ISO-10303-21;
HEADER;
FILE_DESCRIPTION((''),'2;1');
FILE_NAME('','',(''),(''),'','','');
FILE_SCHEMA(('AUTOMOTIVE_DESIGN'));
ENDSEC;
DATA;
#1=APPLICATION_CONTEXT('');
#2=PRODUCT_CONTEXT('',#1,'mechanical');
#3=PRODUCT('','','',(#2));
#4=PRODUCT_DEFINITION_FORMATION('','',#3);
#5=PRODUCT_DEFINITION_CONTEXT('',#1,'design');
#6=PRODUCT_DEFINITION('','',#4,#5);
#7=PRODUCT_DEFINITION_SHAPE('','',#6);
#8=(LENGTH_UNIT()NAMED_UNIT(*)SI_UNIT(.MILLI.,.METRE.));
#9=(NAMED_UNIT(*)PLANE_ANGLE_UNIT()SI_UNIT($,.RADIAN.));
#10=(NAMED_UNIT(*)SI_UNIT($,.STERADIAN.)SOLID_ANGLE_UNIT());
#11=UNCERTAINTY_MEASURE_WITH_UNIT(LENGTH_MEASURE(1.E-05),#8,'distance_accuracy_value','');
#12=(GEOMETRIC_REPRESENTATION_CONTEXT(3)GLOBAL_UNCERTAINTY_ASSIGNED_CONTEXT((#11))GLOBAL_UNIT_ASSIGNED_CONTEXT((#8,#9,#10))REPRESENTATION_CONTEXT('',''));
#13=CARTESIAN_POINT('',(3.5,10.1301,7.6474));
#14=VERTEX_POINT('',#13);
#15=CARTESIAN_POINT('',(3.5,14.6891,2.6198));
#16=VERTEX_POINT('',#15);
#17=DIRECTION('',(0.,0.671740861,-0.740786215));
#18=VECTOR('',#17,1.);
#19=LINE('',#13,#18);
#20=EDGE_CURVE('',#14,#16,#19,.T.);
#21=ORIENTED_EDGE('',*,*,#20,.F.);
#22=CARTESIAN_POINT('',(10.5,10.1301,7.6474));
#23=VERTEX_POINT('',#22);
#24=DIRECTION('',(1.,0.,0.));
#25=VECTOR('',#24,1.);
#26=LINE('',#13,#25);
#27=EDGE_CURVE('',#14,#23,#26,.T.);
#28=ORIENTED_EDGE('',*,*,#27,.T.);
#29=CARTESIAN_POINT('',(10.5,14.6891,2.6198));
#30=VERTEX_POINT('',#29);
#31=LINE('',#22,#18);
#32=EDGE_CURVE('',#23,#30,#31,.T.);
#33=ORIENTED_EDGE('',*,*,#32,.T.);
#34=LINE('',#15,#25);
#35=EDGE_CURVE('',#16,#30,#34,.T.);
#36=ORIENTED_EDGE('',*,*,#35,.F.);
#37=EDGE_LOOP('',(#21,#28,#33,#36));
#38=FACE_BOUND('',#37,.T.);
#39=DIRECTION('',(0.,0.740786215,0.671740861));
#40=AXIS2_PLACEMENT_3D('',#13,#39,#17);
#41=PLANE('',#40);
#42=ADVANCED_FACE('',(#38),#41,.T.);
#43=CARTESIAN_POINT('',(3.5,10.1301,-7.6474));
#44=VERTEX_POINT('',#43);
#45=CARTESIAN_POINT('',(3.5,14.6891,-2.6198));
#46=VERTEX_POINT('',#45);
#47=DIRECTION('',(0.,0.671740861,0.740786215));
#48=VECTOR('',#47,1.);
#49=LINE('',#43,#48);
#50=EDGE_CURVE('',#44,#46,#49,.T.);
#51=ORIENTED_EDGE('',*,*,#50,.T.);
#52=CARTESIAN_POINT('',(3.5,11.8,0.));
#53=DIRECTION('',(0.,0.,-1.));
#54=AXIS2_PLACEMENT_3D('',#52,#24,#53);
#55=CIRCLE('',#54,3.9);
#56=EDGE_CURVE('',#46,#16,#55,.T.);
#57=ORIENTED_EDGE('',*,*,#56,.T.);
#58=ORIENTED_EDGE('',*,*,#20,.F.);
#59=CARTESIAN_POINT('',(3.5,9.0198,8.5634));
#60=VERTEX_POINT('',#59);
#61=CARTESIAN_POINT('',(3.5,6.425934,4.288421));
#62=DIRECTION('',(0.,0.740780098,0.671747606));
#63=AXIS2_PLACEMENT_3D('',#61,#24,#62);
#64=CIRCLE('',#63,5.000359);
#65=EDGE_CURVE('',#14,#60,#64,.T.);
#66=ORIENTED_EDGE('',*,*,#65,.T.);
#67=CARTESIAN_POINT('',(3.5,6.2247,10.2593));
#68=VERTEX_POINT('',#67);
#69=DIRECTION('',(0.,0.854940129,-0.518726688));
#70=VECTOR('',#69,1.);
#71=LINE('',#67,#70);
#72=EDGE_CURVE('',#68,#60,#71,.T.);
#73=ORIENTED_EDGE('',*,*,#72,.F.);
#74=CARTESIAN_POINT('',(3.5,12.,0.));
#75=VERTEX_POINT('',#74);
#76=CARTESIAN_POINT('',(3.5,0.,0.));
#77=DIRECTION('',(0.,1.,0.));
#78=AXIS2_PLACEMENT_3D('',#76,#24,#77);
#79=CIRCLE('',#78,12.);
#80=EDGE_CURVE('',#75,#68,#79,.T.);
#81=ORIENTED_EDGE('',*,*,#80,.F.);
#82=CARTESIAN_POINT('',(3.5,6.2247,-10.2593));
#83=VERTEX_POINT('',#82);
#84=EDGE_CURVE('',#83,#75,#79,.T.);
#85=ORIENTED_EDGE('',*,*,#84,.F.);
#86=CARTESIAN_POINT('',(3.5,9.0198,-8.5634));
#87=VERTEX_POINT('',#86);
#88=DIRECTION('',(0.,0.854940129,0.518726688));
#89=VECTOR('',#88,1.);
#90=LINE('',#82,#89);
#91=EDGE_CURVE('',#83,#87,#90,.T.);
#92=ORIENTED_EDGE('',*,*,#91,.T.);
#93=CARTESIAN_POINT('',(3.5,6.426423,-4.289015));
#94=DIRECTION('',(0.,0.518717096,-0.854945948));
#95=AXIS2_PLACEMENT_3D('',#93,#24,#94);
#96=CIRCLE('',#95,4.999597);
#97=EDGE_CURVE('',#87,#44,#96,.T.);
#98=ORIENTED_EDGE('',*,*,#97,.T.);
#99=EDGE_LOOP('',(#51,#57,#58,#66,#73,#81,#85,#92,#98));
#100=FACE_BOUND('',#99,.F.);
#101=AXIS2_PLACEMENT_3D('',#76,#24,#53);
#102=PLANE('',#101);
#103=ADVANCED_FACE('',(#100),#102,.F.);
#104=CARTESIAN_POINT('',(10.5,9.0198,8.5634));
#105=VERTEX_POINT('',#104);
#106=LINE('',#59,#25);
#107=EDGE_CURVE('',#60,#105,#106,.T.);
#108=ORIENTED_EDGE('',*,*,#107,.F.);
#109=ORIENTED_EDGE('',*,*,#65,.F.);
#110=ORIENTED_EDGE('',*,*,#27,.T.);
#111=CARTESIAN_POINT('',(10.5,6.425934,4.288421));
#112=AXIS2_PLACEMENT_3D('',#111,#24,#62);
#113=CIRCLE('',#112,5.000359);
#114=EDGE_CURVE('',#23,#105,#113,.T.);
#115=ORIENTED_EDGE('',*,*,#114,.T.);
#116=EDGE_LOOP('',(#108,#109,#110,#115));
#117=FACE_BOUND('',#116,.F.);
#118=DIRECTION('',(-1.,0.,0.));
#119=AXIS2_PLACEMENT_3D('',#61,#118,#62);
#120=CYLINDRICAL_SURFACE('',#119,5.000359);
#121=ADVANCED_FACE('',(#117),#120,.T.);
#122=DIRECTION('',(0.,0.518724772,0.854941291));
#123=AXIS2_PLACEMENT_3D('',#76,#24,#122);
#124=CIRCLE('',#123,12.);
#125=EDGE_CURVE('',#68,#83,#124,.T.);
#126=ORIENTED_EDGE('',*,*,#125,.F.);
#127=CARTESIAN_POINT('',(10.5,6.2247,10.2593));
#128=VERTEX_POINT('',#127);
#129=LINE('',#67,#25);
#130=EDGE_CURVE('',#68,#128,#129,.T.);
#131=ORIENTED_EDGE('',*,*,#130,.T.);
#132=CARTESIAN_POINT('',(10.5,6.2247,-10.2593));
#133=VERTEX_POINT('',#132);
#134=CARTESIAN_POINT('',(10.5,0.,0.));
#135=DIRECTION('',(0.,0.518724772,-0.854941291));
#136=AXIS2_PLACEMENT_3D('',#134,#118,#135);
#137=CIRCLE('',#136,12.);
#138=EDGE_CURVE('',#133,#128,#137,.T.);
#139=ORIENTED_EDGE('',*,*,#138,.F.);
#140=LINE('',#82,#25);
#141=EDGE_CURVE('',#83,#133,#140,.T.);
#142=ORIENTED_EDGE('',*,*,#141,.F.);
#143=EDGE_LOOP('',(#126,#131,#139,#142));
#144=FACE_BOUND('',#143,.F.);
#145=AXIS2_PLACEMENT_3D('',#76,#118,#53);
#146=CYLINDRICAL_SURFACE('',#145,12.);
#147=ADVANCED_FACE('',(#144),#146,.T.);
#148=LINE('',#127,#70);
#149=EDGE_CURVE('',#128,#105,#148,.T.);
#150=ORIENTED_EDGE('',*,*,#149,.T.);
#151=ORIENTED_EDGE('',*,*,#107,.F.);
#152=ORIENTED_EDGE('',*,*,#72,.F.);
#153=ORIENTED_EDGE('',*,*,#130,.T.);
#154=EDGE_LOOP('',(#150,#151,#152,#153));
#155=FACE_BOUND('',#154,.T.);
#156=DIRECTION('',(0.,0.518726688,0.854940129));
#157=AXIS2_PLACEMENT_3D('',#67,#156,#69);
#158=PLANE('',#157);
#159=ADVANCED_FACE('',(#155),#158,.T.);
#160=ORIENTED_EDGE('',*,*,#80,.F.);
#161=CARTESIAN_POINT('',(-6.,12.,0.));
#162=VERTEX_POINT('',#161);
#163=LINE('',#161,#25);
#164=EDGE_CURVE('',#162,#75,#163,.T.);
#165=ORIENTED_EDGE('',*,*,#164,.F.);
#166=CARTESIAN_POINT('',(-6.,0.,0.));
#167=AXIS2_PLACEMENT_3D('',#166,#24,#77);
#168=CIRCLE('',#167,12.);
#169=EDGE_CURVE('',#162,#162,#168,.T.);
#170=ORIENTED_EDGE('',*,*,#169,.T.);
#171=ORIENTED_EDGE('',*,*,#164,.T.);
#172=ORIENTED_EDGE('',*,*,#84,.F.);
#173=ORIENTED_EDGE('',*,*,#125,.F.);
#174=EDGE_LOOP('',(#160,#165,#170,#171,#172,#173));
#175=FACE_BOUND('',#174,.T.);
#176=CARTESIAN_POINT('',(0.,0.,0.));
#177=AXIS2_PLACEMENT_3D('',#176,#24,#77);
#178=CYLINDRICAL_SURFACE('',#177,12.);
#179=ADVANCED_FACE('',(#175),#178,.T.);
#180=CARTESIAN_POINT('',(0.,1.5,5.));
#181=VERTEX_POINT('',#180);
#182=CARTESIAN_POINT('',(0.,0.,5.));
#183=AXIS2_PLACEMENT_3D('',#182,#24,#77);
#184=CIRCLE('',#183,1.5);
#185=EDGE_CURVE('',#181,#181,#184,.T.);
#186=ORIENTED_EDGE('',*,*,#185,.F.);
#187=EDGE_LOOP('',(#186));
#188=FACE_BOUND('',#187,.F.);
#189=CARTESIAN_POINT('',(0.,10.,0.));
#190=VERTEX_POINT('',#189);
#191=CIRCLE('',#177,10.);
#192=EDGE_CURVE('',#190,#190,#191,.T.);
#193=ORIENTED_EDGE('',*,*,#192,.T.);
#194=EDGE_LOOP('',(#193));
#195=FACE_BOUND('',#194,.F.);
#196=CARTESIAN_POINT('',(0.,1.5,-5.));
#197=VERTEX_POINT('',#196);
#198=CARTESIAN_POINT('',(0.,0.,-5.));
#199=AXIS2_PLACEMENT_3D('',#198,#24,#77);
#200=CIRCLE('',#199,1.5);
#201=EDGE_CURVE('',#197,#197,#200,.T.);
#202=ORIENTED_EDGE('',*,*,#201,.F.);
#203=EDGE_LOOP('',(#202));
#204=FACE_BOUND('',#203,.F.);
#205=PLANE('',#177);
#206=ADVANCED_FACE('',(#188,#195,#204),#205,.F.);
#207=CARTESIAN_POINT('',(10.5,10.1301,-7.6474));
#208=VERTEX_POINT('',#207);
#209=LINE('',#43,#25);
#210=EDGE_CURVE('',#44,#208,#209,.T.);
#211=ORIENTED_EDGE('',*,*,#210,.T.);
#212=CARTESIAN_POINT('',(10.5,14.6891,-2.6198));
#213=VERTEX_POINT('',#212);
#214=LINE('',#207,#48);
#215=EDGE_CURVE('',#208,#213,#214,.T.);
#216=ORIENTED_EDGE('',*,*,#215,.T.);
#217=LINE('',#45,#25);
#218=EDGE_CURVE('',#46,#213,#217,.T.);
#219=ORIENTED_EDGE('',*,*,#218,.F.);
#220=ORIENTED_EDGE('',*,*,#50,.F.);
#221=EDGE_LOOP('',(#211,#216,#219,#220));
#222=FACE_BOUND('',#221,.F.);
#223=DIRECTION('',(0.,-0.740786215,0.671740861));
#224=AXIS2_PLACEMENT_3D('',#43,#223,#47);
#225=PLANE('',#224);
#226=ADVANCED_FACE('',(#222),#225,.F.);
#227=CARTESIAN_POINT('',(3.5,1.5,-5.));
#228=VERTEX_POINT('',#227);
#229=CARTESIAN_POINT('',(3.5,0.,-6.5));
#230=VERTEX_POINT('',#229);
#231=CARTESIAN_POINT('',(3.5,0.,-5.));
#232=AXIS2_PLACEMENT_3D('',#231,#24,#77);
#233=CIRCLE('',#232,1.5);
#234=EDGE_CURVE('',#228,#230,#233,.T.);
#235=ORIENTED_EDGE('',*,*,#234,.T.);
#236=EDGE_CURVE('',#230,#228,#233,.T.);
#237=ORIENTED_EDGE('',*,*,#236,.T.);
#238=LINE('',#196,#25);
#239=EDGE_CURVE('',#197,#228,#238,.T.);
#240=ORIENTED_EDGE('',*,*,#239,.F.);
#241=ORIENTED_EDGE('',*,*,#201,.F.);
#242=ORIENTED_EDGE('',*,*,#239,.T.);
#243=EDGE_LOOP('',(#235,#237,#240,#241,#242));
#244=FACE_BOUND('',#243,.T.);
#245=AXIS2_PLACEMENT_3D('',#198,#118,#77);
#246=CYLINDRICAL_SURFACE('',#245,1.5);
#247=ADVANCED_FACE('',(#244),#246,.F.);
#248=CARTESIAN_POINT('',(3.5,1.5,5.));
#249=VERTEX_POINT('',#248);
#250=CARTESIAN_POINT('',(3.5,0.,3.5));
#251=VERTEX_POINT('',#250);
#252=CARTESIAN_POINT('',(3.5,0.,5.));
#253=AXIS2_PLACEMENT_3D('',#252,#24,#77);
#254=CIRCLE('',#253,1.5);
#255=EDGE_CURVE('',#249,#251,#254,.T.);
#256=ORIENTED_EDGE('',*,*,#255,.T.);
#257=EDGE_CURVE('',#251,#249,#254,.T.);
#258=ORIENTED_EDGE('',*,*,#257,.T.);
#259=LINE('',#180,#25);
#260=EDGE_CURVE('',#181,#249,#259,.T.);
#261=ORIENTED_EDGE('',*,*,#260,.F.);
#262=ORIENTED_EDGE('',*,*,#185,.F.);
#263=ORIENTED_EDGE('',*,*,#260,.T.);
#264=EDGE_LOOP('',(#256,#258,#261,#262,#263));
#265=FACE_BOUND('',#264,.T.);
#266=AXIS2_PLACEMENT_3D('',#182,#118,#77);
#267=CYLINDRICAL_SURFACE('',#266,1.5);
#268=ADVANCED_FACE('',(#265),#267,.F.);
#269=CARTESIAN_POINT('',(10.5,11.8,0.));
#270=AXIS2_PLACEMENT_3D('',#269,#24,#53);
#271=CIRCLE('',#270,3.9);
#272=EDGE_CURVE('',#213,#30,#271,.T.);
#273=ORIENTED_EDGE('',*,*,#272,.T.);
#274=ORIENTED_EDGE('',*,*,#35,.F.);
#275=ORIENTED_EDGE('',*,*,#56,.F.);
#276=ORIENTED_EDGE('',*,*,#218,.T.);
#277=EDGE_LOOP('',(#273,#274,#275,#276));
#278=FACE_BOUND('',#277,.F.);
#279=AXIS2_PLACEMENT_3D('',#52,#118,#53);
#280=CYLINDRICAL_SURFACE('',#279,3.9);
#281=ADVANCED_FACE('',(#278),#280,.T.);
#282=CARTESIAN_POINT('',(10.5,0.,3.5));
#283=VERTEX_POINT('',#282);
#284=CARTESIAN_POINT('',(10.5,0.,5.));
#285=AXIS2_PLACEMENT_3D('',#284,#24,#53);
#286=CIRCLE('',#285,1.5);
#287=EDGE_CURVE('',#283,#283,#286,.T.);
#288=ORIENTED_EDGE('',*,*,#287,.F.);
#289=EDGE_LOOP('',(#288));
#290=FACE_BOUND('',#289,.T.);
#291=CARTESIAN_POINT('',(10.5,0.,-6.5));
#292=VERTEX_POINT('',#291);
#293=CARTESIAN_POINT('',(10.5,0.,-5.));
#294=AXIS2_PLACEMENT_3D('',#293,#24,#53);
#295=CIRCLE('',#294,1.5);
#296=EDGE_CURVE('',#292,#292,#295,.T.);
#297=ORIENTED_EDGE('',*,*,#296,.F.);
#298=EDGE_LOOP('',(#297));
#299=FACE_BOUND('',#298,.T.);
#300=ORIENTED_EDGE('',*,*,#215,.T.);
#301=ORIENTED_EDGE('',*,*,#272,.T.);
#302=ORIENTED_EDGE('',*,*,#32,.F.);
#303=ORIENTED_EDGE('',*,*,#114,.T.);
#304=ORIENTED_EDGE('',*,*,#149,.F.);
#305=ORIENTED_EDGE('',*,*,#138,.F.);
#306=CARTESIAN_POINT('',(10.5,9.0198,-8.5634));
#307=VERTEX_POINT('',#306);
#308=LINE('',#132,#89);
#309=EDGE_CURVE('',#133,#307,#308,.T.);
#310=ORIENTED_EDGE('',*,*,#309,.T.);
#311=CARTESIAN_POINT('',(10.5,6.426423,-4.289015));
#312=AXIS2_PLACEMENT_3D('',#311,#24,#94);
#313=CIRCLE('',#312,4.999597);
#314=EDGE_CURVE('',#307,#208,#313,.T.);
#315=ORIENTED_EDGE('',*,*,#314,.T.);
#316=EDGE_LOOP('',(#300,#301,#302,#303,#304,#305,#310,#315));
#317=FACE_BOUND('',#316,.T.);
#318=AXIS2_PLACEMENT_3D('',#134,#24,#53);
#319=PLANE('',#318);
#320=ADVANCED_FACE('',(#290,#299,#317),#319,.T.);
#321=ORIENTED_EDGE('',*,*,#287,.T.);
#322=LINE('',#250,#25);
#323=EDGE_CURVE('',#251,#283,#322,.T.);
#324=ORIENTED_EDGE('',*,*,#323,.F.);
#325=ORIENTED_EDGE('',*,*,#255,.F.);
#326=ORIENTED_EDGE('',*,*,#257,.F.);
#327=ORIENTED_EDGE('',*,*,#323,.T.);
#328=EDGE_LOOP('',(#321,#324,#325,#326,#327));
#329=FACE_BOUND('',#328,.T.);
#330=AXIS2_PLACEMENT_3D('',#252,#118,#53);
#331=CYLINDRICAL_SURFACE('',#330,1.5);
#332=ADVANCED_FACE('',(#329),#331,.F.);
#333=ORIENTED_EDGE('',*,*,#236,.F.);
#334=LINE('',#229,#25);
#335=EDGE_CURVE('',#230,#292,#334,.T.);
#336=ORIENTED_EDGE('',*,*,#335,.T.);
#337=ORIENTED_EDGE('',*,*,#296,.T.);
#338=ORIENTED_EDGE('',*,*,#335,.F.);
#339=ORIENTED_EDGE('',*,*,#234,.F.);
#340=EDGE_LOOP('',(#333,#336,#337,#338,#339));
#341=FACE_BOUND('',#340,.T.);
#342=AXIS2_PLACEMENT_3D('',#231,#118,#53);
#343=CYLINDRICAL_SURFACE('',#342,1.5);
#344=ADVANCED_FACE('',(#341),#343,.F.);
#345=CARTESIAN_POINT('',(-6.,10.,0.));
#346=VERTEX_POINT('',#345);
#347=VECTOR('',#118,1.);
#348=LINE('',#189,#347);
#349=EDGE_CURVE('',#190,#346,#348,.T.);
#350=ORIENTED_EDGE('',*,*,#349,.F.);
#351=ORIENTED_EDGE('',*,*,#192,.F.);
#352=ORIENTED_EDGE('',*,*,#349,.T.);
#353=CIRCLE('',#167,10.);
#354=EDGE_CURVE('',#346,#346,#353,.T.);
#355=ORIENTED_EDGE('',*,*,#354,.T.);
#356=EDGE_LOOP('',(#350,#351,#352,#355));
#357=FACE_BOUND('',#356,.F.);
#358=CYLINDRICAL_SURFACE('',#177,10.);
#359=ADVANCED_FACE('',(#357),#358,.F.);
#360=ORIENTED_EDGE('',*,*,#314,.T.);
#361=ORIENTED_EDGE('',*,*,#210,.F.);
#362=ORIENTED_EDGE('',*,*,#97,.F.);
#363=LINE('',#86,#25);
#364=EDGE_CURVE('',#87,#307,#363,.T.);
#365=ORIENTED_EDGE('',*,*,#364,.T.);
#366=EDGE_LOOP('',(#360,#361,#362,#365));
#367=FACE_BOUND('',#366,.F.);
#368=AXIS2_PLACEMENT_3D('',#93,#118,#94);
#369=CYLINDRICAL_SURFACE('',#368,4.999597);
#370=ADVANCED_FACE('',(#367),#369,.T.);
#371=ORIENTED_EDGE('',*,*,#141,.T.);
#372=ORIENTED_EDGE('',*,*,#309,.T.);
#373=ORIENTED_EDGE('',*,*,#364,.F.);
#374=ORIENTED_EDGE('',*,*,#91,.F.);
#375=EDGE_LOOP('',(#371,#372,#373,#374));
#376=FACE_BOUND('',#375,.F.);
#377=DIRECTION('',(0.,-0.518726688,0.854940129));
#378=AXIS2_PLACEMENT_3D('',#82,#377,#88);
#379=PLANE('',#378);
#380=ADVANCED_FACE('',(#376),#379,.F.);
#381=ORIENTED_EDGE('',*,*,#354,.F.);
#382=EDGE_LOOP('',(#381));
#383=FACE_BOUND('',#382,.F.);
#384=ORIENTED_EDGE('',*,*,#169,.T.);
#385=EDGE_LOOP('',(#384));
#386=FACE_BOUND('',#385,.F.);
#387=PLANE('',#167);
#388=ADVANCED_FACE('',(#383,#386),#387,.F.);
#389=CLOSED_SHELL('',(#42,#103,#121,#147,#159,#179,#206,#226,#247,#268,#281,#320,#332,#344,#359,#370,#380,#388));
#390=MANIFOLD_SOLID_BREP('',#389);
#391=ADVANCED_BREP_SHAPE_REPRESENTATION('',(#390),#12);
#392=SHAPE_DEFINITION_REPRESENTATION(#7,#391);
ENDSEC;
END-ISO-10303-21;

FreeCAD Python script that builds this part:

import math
import FreeCAD as App
import Part
import Sketcher
Q = App.Units.Quantity

doc = App.newDocument("Part")
params = doc.addObject("Spreadsheet::Sheet", "Params")
for row, (alias, value) in enumerate([
    ("sketch1_diameter", "3 mm"),
    ("sketch1_diameter2", "24 mm"),
    ("pad1_length", "3.5 mm"),
    ("sketch2_diameter", "20 mm"),
    ("sketch2_diameter2", "24 mm"),
    ("pad2_length", "6 mm"),
    ("sketch3_radius", "5 mm"),
    ("sketch3_radius2", "3.9 mm"),
    ("sketch3_diameter", "3 mm"),
    ("sketch3_radius3", "12 mm"),
    ("pad3_length", "7 mm"),
], start=1):
    params.set(f"A{row}", alias)
    params.set(f"B{row}", "=" + value)
    params.setAlias(f"B{row}", alias)

body = doc.addObject("PartDesign::Body", "Body")

# Sketch on YZ plane
sketch1 = doc.addObject("Sketcher::SketchObject", "Sketch")
body.addObject(sketch1)
sketch1.AttachmentSupport = (doc.YZ_Plane, [""])
sketch1.MapMode = "FlatFace"
sketch1.addGeometry([
    Part.Circle(App.Vector(0, 0, 0), App.Vector(0, 0, 1), 12),
    Part.Circle(App.Vector(0, -5, 0), App.Vector(0, 0, 1), 1.5),
    Part.Circle(App.Vector(0, 5, 0), App.Vector(0, 0, 1), 1.5),
], False)
sketch1.addConstraint([
    Sketcher.Constraint("Coincident", 0, 3, -1, 1),
    Sketcher.Constraint("Equal", 1, 2),
    Sketcher.Constraint("Symmetric", 1, 3, 2, 3, -1, 1),
    Sketcher.Constraint("PointOnObject", 1, 3, -2),
    Sketcher.Constraint("Diameter", 1, Q("3 mm")),
    Sketcher.Constraint("Diameter", 0, Q("24 mm")),
    Sketcher.Constraint("DistanceY", 1, 3, 2, 3, Q("10 mm")),
])
sketch1.setExpression("Constraints[4]", "Params.sketch1_diameter")
sketch1.setExpression("Constraints[5]", "Params.sketch1_diameter2")
pad1 = doc.addObject("PartDesign::Pad", "Pad")
body.addObject(pad1)
pad1.Profile = sketch1
pad1.setExpression("Length", "Params.pad1_length")

# Sketch on YZ plane
sketch2 = doc.addObject("Sketcher::SketchObject", "Sketch001")
body.addObject(sketch2)
sketch2.AttachmentSupport = (doc.YZ_Plane, [""])
sketch2.MapMode = "FlatFace"
sketch2.addGeometry([
    Part.Circle(App.Vector(0, 0, 0), App.Vector(0, 0, 1), 12),
    Part.Circle(App.Vector(0, 0, 0), App.Vector(0, 0, 1), 10),
], False)
sketch2.addConstraint([
    Sketcher.Constraint("Coincident", 0, 3, -1, 1),
    Sketcher.Constraint("Coincident", 1, 3, -1, 1),
    Sketcher.Constraint("Diameter", 1, Q("20 mm")),
    Sketcher.Constraint("Diameter", 0, Q("24 mm")),
])
sketch2.setExpression("Constraints[2]", "Params.sketch2_diameter")
sketch2.setExpression("Constraints[3]", "Params.sketch2_diameter2")
pad2 = doc.addObject("PartDesign::Pad", "Pad001")
body.addObject(pad2)
pad2.Profile = sketch2
pad2.setExpression("Length", "Params.pad2_length")
pad2.Reversed = True

# Sketch on YZ plane
sketch3 = doc.addObject("Sketcher::SketchObject", "Sketch002")
body.addObject(sketch3)
sketch3.AttachmentSupport = (doc.YZ_Plane, [""])
sketch3.MapMode = "FlatFace"
sketch3.AttachmentOffset = App.Placement(App.Vector(0, 0, 3.5), App.Rotation())
sketch3.addGeometry([
    Part.ArcOfCircle(Part.Circle(App.Vector(0, 0, 0), App.Vector(0, 0, 1), 12), math.radians(59), math.radians(301)),  # 0
    Part.LineSegment(App.Vector(6.2, -10.3, 0), App.Vector(9, -8.6, 0)),  # 1
    Part.ArcOfCircle(Part.Circle(App.Vector(6.4, -4.3, 0), App.Vector(0, 0, 1), 5), math.radians(-58.75), math.radians(-42.2)),  # 2
    Part.LineSegment(App.Vector(10.1, -7.6, 0), App.Vector(14.7, -2.6, 0)),  # 3
    Part.ArcOfCircle(Part.Circle(App.Vector(11.8, 0, 0), App.Vector(0, 0, 1), 3.9), math.radians(-42), math.radians(42)),  # 4
    Part.LineSegment(App.Vector(14.7, 2.6, 0), App.Vector(10.1, 7.6, 0)),  # 5
    Part.ArcOfCircle(Part.Circle(App.Vector(6.4, 4.3, 0), App.Vector(0, 0, 1), 5), math.radians(42.2), math.radians(58.75)),  # 6
    Part.LineSegment(App.Vector(9, 8.6, 0), App.Vector(6.2, 10.3, 0)),  # 7
    Part.Circle(App.Vector(0, 5, 0), App.Vector(0, 0, 1), 1.5),  # 8
    Part.Circle(App.Vector(0, -5, 0), App.Vector(0, 0, 1), 1.5),  # 9
], False)
sketch3.addConstraint([
    Sketcher.Constraint("Tangent", 0, 2, 1, 1),
    Sketcher.Constraint("Tangent", 1, 2, 2, 1),
    Sketcher.Constraint("Tangent", 2, 2, 3, 1),
    Sketcher.Constraint("Tangent", 3, 2, 4, 1),
    Sketcher.Constraint("Tangent", 4, 2, 5, 1),
    Sketcher.Constraint("Tangent", 5, 2, 6, 1),
    Sketcher.Constraint("Tangent", 6, 2, 7, 1),
    Sketcher.Constraint("Tangent", 7, 2, 0, 1),
    Sketcher.Constraint("Coincident", 0, 3, -1, 1),
    Sketcher.Constraint("Equal", 2, 6),
    Sketcher.Constraint("Equal", 8, 9),
    Sketcher.Constraint("Symmetric", 8, 3, 9, 3, -1, 1),
    Sketcher.Constraint("Symmetric", 2, 3, 6, 3, -1),
    Sketcher.Constraint("PointOnObject", 4, 3, -1),
    Sketcher.Constraint("PointOnObject", 8, 3, -2),
    Sketcher.Constraint("Radius", 2, Q("5 mm")),
    Sketcher.Constraint("Radius", 4, Q("3.9 mm")),
    Sketcher.Constraint("Diameter", 8, Q("3 mm")),
    Sketcher.Constraint("DistanceY", -1, 1, 8, 3, Q("5 mm")),
    Sketcher.Constraint("Radius", 0, Q("12 mm")),
    Sketcher.Constraint("DistanceX", -1, 1, 4, 3, Q("11.8 mm")),
    Sketcher.Constraint("DistanceX", -1, 1, 2, 2, Q("10.13 mm")),
    Sketcher.Constraint("DistanceX", -1, 1, 3, 2, Q("14.689 mm")),
])
sketch3.setExpression("Constraints[15]", "Params.sketch3_radius")
sketch3.setExpression("Constraints[16]", "Params.sketch3_radius2")
sketch3.setExpression("Constraints[17]", "Params.sketch3_diameter")
sketch3.setExpression("Constraints[19]", "Params.sketch3_radius3")
pad3 = doc.addObject("PartDesign::Pad", "Pad002")
body.addObject(pad3)
pad3.Profile = sketch3
pad3.setExpression("Length", "Params.pad3_length")

doc.recompute()
